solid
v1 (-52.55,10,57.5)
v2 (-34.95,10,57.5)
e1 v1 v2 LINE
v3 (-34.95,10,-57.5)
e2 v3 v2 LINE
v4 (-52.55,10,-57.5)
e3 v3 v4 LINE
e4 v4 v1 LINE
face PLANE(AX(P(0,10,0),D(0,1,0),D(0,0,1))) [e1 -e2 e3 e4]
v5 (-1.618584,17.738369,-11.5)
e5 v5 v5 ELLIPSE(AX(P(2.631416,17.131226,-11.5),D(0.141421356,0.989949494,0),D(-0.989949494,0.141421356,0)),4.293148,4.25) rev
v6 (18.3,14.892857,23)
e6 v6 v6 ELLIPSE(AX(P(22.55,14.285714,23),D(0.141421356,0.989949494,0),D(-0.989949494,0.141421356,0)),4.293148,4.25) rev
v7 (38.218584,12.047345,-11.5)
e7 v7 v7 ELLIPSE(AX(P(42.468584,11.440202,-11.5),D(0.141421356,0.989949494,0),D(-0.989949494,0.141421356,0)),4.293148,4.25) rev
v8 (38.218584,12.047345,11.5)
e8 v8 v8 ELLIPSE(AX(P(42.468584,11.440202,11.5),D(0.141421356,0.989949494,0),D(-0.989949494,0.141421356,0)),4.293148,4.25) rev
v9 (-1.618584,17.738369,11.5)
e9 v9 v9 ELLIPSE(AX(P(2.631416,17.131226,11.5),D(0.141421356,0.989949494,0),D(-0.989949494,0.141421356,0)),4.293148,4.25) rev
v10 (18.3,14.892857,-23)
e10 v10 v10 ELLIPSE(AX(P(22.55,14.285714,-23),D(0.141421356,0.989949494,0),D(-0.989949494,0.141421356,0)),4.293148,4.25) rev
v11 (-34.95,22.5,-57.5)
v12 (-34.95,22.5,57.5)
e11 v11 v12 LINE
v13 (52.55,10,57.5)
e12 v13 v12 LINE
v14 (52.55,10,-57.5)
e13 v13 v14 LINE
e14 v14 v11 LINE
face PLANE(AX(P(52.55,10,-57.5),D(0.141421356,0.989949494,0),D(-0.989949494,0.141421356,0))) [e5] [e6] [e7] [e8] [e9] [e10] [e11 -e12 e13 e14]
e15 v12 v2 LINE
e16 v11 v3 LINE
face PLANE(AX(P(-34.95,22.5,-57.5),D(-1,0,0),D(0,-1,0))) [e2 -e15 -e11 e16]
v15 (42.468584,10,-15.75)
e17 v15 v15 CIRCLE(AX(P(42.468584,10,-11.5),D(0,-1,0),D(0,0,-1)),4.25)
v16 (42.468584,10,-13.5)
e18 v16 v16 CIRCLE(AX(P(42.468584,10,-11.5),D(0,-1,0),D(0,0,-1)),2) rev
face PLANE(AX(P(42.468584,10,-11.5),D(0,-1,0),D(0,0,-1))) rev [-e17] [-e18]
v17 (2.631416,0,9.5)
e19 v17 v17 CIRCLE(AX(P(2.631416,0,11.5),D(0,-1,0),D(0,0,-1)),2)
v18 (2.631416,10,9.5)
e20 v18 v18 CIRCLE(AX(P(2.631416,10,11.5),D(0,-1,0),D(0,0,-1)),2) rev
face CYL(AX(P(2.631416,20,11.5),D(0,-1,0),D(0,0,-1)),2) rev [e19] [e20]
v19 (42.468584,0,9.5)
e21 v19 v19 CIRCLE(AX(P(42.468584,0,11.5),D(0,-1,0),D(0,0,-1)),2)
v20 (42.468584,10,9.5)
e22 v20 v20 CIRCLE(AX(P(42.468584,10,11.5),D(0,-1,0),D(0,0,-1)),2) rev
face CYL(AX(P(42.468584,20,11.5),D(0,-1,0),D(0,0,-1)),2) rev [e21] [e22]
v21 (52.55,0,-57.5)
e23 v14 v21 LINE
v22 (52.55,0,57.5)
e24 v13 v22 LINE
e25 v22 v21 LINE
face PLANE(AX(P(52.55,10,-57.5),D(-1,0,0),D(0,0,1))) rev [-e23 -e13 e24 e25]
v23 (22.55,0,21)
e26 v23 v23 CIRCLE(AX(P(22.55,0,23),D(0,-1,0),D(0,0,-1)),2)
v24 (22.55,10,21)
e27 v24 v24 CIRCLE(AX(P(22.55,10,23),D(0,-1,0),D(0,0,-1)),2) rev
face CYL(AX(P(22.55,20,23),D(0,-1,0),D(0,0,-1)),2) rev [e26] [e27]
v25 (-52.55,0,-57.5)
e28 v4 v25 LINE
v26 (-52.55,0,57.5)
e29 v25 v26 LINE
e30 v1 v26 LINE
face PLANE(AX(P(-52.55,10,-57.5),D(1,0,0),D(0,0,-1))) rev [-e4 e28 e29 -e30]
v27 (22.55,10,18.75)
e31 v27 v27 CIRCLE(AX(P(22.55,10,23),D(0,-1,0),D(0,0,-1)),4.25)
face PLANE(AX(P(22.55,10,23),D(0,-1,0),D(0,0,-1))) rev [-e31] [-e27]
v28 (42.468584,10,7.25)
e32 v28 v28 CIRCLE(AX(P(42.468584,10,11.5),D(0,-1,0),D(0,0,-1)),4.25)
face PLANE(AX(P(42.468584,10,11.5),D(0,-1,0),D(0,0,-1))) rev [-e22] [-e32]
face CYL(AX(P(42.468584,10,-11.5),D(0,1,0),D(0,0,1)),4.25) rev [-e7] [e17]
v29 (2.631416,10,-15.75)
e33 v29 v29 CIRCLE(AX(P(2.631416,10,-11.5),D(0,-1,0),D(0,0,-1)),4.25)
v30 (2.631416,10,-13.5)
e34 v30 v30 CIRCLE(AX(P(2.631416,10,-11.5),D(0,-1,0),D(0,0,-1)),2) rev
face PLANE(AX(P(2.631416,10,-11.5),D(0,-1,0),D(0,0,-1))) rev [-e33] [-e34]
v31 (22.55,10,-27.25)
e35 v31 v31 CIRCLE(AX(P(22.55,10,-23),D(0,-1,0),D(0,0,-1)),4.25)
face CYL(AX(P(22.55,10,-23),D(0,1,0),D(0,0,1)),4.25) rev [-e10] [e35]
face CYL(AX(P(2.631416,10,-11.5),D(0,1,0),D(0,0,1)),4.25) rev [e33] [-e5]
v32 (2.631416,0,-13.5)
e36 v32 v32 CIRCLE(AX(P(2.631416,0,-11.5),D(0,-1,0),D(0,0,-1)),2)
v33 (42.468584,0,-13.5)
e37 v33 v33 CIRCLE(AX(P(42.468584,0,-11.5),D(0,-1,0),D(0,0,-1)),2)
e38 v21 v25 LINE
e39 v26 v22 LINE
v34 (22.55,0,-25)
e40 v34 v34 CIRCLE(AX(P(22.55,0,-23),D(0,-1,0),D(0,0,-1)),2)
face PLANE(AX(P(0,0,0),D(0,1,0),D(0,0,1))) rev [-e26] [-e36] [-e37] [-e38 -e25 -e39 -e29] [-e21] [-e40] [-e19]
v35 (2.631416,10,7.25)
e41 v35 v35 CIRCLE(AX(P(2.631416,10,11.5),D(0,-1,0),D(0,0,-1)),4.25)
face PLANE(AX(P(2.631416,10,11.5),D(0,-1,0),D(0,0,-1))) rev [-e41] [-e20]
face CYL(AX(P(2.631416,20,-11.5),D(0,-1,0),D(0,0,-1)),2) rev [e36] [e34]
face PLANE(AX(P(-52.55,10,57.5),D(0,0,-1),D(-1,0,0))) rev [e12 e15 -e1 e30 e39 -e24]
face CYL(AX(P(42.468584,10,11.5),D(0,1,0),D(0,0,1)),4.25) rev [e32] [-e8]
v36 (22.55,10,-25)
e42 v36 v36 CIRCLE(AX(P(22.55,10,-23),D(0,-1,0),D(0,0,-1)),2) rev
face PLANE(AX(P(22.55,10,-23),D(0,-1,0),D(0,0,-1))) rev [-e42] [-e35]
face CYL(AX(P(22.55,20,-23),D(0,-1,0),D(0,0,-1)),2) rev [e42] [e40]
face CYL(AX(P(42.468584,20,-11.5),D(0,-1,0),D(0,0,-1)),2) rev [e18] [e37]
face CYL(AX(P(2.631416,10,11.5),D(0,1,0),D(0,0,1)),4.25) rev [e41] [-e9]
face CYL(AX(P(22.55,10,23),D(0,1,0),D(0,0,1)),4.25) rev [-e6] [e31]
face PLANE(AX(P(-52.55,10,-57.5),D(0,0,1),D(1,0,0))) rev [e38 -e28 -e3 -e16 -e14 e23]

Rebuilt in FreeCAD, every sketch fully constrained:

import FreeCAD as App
import Part
import Sketcher
Q = App.Units.Quantity

doc = App.newDocument("Part")
params = doc.addObject("Spreadsheet::Sheet", "Params")
for row, (alias, value) in enumerate([
    ("sketch1_height", "115 mm"),
    ("sketch1_width", "105.1 mm"),
    ("pad1_length", "10 mm"),
    ("sketch2_width", "87.5 mm"),
    ("sketch2_height", "12.5 mm"),
    ("pad2_length", "115 mm"),
    ("sketch3_diameter", "4 mm"),
    ("pocket1_length", "20 mm"),
    ("sketch4_diameter", "8.5 mm"),
    ("pocket2_length", "40 mm"),
], start=1):
    params.set(f"A{row}", alias)
    params.set(f"B{row}", "=" + value)
    params.setAlias(f"B{row}", alias)

body = doc.addObject("PartDesign::Body", "Body")

# Sketch on XZ plane
sketch1 = body.newObject("Sketcher::SketchObject", "Sketch")
sketch1.AttachmentSupport = (doc.getObject("XZ_Plane"), [""])
sketch1.MapMode = "FlatFace"
sketch1.addGeometry([
    Part.LineSegment(App.Vector(-52.55, -57.5, 0), App.Vector(-52.55, 57.5, 0)),
    Part.LineSegment(App.Vector(-52.55, 57.5, 0), App.Vector(52.55, 57.5, 0)),
    Part.LineSegment(App.Vector(52.55, 57.5, 0), App.Vector(52.55, -57.5, 0)),
    Part.LineSegment(App.Vector(52.55, -57.5, 0), App.Vector(-52.55, -57.5, 0)),
], False)
sketch1.addConstraint([
    Sketcher.Constraint("Coincident", 0, 2, 1, 1),
    Sketcher.Constraint("Coincident", 1, 2, 2, 1),
    Sketcher.Constraint("Coincident", 2, 2, 3, 1),
    Sketcher.Constraint("Coincident", 3, 2, 0, 1),
    Sketcher.Constraint("Vertical", 0),
    Sketcher.Constraint("Horizontal", 1),
    Sketcher.Constraint("Vertical", 2),
    Sketcher.Constraint("Horizontal", 3),
    Sketcher.Constraint("Symmetric", 0, 2, 2, 2, -1, 1),
    Sketcher.Constraint("DistanceY", 0, 1, 0, 2, Q("115 mm")),
    Sketcher.Constraint("DistanceX", 1, 1, 1, 2, Q("105.1 mm")),
])
sketch1.setExpression("Constraints[9]", "Params.sketch1_height")
sketch1.setExpression("Constraints[10]", "Params.sketch1_width")
pad1 = body.newObject("PartDesign::Pad", "Pad")
pad1.Profile = sketch1
pad1.setExpression("Length", "Params.pad1_length")
pad1.Reversed = True

# Sketch on XY plane
sketch2 = body.newObject("Sketcher::SketchObject", "Sketch001")
sketch2.AttachmentSupport = (doc.getObject("XY_Plane"), [""])
sketch2.MapMode = "FlatFace"
sketch2.AttachmentOffset = App.Placement(App.Vector(0, 0, 57.5), App.Rotation())
sketch2.addGeometry([
    Part.LineSegment(App.Vector(-34.95, 10, 0), App.Vector(52.55, 10, 0)),
    Part.LineSegment(App.Vector(52.55, 10, 0), App.Vector(-34.95, 22.5, 0)),
    Part.LineSegment(App.Vector(-34.95, 22.5, 0), App.Vector(-34.95, 10, 0)),
], False)
sketch2.addConstraint([
    Sketcher.Constraint("Coincident", 0, 2, 1, 1),
    Sketcher.Constraint("Coincident", 1, 2, 2, 1),
    Sketcher.Constraint("Coincident", 2, 2, 0, 1),
    Sketcher.Constraint("Horizontal", 0),
    Sketcher.Constraint("Vertical", 2),
    Sketcher.Constraint("DistanceX", 0, 1, 0, 2, Q("87.5 mm")),
    Sketcher.Constraint("DistanceY", 2, 2, 2, 1, Q("12.5 mm")),
    Sketcher.Constraint("DistanceY", -1, 1, 0, 2, Q("10 mm")),
    Sketcher.Constraint("DistanceX", -1, 1, 0, 2, Q("52.55 mm")),
])
sketch2.setExpression("Constraints[5]", "Params.sketch2_width")
sketch2.setExpression("Constraints[6]", "Params.sketch2_height")
pad2 = body.newObject("PartDesign::Pad", "Pad001")
pad2.Profile = sketch2
pad2.setExpression("Length", "Params.pad2_length")
pad2.Reversed = True

# Sketch on XZ plane
sketch3 = body.newObject("Sketcher::SketchObject", "Sketch002")
sketch3.AttachmentSupport = (doc.getObject("XZ_Plane"), [""])
sketch3.MapMode = "FlatFace"
sketch3.addGeometry([
    Part.Circle(App.Vector(22.55, 23, 0), App.Vector(0, 0, 1), 2),  # 0
    Part.Circle(App.Vector(2.631416, 11.5, 0), App.Vector(0, 0, 1), 2),  # 1
    Part.Circle(App.Vector(2.631416, -11.5, 0), App.Vector(0, 0, 1), 2),  # 2
    Part.Circle(App.Vector(22.55, -23, 0), App.Vector(0, 0, 1), 2),  # 3
    Part.Circle(App.Vector(42.468584, -11.5, 0), App.Vector(0, 0, 1), 2),  # 4
    Part.Circle(App.Vector(42.468584, 11.5, 0), App.Vector(0, 0, 1), 2),  # 5
], False)
sketch3.addConstraint([
    Sketcher.Constraint("Equal", 0, 1),
    Sketcher.Constraint("Equal", 1, 2),
    Sketcher.Constraint("Equal", 2, 3),
    Sketcher.Constraint("Equal", 3, 4),
    Sketcher.Constraint("Equal", 4, 5),
    Sketcher.Constraint("Symmetric", 1, 3, 2, 3, -1),
    Sketcher.Constraint("Symmetric", 0, 3, 3, 3, -1),
    Sketcher.Constraint("Symmetric", 4, 3, 5, 3, -1),
    Sketcher.Constraint("Horizontal", 2, 3, 4, 3),
    Sketcher.Constraint("Diameter", 0, Q("4 mm")),
    Sketcher.Constraint("DistanceY", -1, 1, 0, 3, Q("23 mm")),
    Sketcher.Constraint("DistanceY", 2, 3, 1, 3, Q("23 mm")),
    Sketcher.Constraint("DistanceX", -1, 1, 0, 3, Q("22.55 mm")),
    Sketcher.Constraint("DistanceX", 2, 3, 4, 3, Q("39.837169 mm")),
    Sketcher.Constraint("DistanceX", -1, 1, 1, 3, Q("2.631416 mm")),
])
sketch3.setExpression("Constraints[9]", "Params.sketch3_diameter")
pocket1 = body.newObject("PartDesign::Pocket", "Pocket")
pocket1.Profile = sketch3
pocket1.setExpression("Length", "Params.pocket1_length")

# Sketch on XZ plane
sketch4 = body.newObject("Sketcher::SketchObject", "Sketch003")
sketch4.AttachmentSupport = (doc.getObject("XZ_Plane"), [""])
sketch4.MapMode = "FlatFace"
sketch4.AttachmentOffset = App.Placement(App.Vector(0, 0, -50), App.Rotation())
sketch4.addGeometry([
    Part.Circle(App.Vector(22.55, -23, 0), App.Vector(0, 0, 1), 4.25),  # 0
    Part.Circle(App.Vector(2.631416, -11.5, 0), App.Vector(0, 0, 1), 4.25),  # 1
    Part.Circle(App.Vector(2.631416, 11.5, 0), App.Vector(0, 0, 1), 4.25),  # 2
    Part.Circle(App.Vector(22.55, 23, 0), App.Vector(0, 0, 1), 4.25),  # 3
    Part.Circle(App.Vector(42.468584, 11.5, 0), App.Vector(0, 0, 1), 4.25),  # 4
    Part.Circle(App.Vector(42.468584, -11.5, 0), App.Vector(0, 0, 1), 4.25),  # 5
], False)
sketch4.addConstraint([
    Sketcher.Constraint("Equal", 0, 1),
    Sketcher.Constraint("Equal", 1, 2),
    Sketcher.Constraint("Equal", 2, 3),
    Sketcher.Constraint("Equal", 3, 4),
    Sketcher.Constraint("Equal", 4, 5),
    Sketcher.Constraint("Symmetric", 1, 3, 2, 3, -1),
    Sketcher.Constraint("Symmetric", 0, 3, 3, 3, -1),
    Sketcher.Constraint("Symmetric", 4, 3, 5, 3, -1),
    Sketcher.Constraint("Horizontal", 2, 3, 4, 3),
    Sketcher.Constraint("Diameter", 0, Q("8.5 mm")),
    Sketcher.Constraint("DistanceY", 0, 3, -1, 1, Q("23 mm")),
    Sketcher.Constraint("DistanceY", 1, 3, 2, 3, Q("23 mm")),
    Sketcher.Constraint("DistanceX", -1, 1, 0, 3, Q("22.55 mm")),
    Sketcher.Constraint("DistanceX", 2, 3, 4, 3, Q("39.837169 mm")),
    Sketcher.Constraint("DistanceX", -1, 1, 1, 3, Q("2.631416 mm")),
])
sketch4.setExpression("Constraints[9]", "Params.sketch4_diameter")
pocket2 = body.newObject("PartDesign::Pocket", "Pocket001")
pocket2.Profile = sketch4
pocket2.setExpression("Length", "Params.pocket2_length")
pocket2.Reversed = True

doc.recompute()
